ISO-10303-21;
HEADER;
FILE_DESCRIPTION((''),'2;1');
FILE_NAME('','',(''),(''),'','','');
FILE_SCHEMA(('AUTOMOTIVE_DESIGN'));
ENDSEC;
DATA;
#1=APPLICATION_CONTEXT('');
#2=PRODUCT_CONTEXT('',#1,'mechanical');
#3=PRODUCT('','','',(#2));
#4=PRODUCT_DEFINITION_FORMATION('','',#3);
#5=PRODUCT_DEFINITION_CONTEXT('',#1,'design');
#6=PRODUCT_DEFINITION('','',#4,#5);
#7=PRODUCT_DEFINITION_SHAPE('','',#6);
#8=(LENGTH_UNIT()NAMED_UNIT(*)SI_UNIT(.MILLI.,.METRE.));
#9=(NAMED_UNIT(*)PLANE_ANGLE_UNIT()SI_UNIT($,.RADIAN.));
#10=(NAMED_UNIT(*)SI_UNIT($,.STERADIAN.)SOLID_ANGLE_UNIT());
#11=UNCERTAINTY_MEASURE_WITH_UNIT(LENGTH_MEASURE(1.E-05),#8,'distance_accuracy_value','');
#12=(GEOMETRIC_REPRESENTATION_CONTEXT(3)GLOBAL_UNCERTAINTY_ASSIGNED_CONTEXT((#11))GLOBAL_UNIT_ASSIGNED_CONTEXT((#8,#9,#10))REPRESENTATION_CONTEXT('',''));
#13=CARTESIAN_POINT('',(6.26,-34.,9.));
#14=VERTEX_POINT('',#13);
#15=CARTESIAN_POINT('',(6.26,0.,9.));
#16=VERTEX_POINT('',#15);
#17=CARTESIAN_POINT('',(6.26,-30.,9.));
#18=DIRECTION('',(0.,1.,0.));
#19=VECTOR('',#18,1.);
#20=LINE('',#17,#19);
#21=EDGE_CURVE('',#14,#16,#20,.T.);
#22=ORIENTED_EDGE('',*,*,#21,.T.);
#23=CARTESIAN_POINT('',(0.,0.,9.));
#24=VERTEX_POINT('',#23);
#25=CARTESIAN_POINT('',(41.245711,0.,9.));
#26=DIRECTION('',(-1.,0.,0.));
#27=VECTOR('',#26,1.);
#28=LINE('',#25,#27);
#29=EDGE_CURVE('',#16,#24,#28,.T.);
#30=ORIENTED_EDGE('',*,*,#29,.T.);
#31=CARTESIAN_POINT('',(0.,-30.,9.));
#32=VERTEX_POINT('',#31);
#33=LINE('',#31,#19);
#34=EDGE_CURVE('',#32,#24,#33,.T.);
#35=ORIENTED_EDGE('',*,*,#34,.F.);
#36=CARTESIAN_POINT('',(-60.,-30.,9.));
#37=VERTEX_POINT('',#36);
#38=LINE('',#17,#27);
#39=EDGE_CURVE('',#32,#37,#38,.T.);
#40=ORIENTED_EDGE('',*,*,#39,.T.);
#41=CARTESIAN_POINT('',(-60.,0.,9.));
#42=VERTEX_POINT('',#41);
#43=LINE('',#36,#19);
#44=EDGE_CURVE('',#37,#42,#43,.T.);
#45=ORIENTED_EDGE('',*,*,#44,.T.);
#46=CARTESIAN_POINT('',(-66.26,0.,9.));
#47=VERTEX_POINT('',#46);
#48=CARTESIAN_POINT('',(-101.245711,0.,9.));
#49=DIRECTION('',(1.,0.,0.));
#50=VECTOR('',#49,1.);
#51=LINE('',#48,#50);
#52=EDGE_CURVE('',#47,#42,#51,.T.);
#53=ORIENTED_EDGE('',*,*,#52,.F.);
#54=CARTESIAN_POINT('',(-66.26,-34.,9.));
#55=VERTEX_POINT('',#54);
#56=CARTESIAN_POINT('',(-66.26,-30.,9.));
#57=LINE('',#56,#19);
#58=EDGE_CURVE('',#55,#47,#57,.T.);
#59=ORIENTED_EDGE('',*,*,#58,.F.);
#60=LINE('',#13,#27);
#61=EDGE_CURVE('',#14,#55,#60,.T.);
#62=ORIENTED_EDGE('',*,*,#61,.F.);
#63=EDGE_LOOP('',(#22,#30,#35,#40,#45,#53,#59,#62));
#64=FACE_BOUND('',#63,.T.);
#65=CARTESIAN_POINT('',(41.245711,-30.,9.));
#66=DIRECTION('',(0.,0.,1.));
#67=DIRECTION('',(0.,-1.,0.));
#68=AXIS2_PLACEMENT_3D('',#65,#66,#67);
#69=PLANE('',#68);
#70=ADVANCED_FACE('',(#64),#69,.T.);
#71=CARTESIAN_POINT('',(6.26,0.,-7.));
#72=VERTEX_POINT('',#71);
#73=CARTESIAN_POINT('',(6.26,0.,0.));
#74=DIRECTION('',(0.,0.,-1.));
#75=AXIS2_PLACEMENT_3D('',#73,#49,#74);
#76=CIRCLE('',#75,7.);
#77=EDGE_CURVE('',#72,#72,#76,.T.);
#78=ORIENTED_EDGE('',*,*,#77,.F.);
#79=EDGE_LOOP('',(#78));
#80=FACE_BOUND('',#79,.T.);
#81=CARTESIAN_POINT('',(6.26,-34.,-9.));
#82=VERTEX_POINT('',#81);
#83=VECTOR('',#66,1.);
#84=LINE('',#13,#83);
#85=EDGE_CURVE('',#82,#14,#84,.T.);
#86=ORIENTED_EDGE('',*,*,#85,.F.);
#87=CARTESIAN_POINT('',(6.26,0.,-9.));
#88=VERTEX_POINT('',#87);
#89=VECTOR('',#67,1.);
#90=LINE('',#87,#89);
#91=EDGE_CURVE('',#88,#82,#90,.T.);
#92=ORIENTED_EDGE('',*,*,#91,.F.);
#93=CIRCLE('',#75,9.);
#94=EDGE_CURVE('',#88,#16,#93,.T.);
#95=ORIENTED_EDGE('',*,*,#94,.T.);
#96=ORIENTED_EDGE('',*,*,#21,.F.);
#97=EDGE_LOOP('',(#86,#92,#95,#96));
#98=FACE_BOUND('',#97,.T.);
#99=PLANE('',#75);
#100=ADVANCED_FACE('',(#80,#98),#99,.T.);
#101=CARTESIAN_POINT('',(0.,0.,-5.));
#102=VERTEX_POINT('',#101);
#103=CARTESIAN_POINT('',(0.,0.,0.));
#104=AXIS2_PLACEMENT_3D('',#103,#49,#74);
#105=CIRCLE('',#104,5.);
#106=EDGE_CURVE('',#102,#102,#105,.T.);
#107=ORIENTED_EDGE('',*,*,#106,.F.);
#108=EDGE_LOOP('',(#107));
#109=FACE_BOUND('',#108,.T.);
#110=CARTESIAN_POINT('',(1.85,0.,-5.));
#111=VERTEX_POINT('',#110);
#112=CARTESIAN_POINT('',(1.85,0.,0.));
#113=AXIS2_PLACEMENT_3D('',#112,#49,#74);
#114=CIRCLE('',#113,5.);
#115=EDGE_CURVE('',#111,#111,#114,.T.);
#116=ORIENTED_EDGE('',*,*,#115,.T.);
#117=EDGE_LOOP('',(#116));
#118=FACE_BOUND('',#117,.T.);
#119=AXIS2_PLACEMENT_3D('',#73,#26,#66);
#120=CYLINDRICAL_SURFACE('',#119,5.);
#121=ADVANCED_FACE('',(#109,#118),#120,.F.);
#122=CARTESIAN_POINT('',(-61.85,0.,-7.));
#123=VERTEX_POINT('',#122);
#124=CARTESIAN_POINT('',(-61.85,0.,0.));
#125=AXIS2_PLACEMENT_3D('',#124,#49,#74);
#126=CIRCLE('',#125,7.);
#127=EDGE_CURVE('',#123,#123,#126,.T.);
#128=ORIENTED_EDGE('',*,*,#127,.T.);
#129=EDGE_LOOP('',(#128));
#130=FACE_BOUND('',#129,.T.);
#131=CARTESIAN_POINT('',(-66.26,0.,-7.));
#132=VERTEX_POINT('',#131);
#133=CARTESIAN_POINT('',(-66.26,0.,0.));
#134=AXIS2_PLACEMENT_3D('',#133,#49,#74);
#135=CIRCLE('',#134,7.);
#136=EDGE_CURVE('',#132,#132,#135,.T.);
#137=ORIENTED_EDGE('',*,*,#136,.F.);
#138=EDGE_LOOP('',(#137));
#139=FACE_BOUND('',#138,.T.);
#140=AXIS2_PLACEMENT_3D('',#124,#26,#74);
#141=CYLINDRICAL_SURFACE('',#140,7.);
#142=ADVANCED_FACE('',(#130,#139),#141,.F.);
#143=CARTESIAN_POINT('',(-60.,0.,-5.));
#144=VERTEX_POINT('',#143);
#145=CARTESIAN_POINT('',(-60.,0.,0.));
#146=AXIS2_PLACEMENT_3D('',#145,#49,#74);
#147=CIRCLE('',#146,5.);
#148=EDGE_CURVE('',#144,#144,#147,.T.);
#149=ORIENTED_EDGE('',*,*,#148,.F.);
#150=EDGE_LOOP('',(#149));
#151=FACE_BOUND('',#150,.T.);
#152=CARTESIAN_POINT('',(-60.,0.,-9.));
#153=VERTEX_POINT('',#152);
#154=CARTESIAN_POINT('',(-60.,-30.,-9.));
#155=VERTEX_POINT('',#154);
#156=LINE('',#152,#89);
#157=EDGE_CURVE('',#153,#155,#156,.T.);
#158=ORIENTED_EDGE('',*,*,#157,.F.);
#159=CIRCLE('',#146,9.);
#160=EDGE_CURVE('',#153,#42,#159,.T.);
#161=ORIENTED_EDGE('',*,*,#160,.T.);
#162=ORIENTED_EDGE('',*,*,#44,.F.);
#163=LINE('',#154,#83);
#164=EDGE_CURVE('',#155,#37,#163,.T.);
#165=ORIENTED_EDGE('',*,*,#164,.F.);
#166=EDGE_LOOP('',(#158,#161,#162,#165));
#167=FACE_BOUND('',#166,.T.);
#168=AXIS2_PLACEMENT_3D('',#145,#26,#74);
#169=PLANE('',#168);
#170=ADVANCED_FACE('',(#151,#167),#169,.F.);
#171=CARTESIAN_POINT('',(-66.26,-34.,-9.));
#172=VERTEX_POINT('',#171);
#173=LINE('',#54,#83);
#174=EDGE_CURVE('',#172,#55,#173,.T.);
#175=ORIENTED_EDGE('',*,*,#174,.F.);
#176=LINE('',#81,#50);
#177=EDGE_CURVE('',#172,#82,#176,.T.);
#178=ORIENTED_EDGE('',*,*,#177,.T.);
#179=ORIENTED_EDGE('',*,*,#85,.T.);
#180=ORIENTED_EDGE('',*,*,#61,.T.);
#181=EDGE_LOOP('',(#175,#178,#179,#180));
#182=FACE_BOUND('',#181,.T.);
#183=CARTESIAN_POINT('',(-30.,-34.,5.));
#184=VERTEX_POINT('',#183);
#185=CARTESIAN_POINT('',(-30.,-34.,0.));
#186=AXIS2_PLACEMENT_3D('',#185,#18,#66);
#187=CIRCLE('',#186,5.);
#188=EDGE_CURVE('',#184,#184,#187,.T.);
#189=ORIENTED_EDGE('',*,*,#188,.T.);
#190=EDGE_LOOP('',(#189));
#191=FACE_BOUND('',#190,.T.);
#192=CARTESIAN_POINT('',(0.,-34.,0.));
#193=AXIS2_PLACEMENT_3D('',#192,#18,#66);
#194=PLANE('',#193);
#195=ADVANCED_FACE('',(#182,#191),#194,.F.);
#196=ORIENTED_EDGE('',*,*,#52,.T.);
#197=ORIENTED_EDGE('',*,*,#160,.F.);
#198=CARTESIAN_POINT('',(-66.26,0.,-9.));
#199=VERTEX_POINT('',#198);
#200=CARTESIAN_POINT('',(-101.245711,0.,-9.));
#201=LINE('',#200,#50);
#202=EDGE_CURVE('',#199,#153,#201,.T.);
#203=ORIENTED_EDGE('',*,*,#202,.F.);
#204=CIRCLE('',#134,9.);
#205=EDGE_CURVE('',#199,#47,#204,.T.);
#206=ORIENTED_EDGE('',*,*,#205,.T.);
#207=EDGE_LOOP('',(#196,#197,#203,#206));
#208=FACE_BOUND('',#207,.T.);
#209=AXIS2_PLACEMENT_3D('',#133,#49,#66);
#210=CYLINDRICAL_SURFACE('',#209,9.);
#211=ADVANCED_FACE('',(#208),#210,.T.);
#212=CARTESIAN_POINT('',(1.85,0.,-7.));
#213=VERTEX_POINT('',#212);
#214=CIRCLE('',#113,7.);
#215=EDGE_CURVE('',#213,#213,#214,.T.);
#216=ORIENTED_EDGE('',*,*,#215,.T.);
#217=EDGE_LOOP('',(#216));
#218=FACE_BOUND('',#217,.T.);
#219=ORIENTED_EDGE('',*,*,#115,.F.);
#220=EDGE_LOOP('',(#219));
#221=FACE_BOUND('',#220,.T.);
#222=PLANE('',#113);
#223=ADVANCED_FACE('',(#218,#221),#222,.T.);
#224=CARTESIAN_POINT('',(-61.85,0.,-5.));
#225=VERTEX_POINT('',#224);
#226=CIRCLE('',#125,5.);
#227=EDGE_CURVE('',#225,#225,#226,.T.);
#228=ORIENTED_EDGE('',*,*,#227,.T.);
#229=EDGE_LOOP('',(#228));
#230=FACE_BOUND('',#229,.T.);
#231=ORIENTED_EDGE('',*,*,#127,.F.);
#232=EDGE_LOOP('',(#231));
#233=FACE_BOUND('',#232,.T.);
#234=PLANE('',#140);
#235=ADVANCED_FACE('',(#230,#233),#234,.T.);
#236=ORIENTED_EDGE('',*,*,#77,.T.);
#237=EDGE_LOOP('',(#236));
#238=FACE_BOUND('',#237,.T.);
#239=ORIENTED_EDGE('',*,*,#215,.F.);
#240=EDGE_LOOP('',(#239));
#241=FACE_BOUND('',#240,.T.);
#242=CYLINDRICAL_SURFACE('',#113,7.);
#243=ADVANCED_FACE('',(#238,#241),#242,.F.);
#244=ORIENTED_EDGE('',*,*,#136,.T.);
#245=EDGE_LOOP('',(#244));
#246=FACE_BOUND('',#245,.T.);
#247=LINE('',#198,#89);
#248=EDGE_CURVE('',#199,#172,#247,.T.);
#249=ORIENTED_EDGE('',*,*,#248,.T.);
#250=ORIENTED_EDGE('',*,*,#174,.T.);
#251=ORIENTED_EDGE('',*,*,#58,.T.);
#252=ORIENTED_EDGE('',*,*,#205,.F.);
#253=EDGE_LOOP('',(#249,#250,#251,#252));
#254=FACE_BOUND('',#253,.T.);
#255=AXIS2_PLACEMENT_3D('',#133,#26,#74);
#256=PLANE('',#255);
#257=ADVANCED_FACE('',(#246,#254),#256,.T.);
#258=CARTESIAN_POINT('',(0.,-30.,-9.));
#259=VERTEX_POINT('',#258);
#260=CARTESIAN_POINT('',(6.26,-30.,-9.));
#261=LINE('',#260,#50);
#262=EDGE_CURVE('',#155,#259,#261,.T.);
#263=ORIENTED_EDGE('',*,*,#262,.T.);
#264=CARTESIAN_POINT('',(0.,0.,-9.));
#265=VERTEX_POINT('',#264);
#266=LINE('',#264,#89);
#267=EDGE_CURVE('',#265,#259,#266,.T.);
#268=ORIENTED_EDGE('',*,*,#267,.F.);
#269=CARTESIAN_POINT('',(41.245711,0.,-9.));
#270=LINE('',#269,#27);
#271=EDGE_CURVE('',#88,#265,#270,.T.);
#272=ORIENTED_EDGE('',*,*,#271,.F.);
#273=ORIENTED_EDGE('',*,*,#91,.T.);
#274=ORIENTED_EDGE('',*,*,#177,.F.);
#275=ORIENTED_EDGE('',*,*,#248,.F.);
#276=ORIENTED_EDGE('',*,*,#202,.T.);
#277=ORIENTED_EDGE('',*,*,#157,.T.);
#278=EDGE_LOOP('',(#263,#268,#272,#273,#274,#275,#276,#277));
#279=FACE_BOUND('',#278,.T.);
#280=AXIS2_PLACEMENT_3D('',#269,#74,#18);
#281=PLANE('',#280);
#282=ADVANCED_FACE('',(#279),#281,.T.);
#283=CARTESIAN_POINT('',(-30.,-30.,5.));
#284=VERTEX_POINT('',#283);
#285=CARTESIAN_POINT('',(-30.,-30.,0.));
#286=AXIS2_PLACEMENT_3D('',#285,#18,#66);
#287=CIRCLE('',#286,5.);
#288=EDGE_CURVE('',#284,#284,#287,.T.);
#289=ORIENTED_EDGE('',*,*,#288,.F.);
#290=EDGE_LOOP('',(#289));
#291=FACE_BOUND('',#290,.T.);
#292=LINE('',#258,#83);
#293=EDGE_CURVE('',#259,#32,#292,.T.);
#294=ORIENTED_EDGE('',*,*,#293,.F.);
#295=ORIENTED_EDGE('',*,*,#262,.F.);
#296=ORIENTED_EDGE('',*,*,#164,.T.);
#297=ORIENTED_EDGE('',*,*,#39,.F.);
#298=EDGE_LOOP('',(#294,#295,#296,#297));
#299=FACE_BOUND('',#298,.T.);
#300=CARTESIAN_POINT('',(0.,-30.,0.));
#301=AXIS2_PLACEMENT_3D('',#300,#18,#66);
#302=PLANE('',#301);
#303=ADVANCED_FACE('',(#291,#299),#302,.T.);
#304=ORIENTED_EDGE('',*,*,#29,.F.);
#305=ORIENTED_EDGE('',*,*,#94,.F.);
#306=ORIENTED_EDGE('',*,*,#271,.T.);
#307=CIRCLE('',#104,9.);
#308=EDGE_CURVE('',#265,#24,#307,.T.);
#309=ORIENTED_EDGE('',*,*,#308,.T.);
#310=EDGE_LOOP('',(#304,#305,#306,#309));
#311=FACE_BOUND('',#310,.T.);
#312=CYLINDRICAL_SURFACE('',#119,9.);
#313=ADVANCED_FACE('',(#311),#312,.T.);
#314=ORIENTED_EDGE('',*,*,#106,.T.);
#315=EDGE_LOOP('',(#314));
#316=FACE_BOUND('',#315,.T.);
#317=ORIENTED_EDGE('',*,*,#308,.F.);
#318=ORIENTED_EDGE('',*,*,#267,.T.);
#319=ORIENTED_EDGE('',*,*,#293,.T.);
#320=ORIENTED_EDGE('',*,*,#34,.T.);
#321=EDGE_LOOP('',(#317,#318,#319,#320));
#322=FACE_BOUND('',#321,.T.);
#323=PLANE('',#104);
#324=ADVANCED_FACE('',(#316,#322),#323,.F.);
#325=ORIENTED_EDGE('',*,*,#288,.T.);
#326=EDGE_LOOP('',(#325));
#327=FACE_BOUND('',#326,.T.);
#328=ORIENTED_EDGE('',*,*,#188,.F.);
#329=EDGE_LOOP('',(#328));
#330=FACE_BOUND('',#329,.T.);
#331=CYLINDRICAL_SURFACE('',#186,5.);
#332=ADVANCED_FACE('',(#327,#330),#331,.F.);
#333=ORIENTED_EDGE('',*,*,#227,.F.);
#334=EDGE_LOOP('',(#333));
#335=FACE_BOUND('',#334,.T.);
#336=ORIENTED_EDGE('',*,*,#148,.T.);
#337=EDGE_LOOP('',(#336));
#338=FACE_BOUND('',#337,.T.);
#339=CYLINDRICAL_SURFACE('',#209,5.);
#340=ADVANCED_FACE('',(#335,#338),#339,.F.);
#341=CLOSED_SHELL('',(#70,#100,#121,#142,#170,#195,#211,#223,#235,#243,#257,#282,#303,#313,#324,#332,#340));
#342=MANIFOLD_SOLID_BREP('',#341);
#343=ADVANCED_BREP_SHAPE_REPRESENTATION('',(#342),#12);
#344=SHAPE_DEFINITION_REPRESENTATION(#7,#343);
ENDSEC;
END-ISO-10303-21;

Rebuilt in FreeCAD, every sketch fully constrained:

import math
import FreeCAD as App
import Part
import Sketcher
from FreeCAD import Vector
Q = App.Units.Quantity

doc = App.newDocument("Part")
params = doc.addObject("Spreadsheet::Sheet", "Params")
for row, (alias, value) in enumerate([
    ("sketch1_diameter", "18 mm"),
    ("sketch1_diameter2", "10 mm"),
    ("pad1_length", "6.26 mm"),
    ("sketch2_radius", "5 mm"),
    ("sketch2_width", "30 mm"),
    ("sketch2_height", "18 mm"),
    ("pad2_length", "6.26 mm"),
    ("sketch3_diameter", "14 mm"),
    ("pocket1_length", "4.41 mm"),
    ("sketch4_height", "18 mm"),
    ("sketch4_width", "36.26 mm"),
    ("pad3_length", "4 mm"),
    ("sketch5_diameter", "10 mm"),
], start=1):
    params.set(f"A{row}", alias)
    params.set(f"B{row}", "=" + value)
    params.setAlias(f"B{row}", alias)

body = doc.addObject("PartDesign::Body", "Body")

# Sketch on YZ plane
sketch1 = body.newObject("Sketcher::SketchObject", "Sketch")
sketch1.AttachmentSupport = (doc.getObject("YZ_Plane"), [""])
sketch1.MapMode = "FlatFace"
sketch1.addGeometry([
    Part.Circle(Vector(0, 0, 0), Vector(0, 0, 1), 9),
    Part.Circle(Vector(0, 0, 0), Vector(0, 0, 1), 5),
], False)
sketch1.addConstraint([
    Sketcher.Constraint("Coincident", 0, 3, -1, 1),
    Sketcher.Constraint("Coincident", 1, 3, -1, 1),
    Sketcher.Constraint("Diameter", 0, Q("18 mm")),
    Sketcher.Constraint("Diameter", 1, Q("10 mm")),
])
sketch1.setExpression("Constraints[2]", "Params.sketch1_diameter")
sketch1.setExpression("Constraints[3]", "Params.sketch1_diameter2")
pad1 = body.newObject("PartDesign::Pad", "Pad")
pad1.Profile = sketch1
pad1.setExpression("Length", "Params.pad1_length")

# Sketch on YZ plane
sketch2 = body.newObject("Sketcher::SketchObject", "Sketch001")
sketch2.AttachmentSupport = (doc.getObject("YZ_Plane"), [""])
sketch2.MapMode = "FlatFace"
sketch2.addGeometry([
    Part.LineSegment(Vector(0, -9, 0), Vector(-30, -9, 0)),  # 0
    Part.LineSegment(Vector(-30, -9, 0), Vector(-30, 9, 0)),  # 1
    Part.LineSegment(Vector(-30, 9, 0), Vector(0, 9, 0)),  # 2
    Part.LineSegment(Vector(0, 9, 0), Vector(0, 5, 0)),  # 3
    Part.ArcOfCircle(Part.Circle(Vector(0, 0, 0), Vector(0, 0, 1), 5), math.radians(90), math.radians(270)),  # 4
    Part.LineSegment(Vector(0, -5, 0), Vector(0, -9, 0)),  # 5
], False)
sketch2.addConstraint([
    Sketcher.Constraint("Coincident", 0, 2, 1, 1),
    Sketcher.Constraint("Coincident", 1, 2, 2, 1),
    Sketcher.Constraint("Coincident", 2, 2, 3, 1),
    Sketcher.Constraint("Coincident", 3, 2, 4, 1),
    Sketcher.Constraint("Coincident", 4, 2, 5, 1),
    Sketcher.Constraint("Coincident", 5, 2, 0, 1),
    Sketcher.Constraint("Horizontal", 0),
    Sketcher.Constraint("Vertical", 1),
    Sketcher.Constraint("Horizontal", 2),
    Sketcher.Constraint("Vertical", 3),
    Sketcher.Constraint("Vertical", 5),
    Sketcher.Constraint("Coincident", 4, 3, -1, 1),
    Sketcher.Constraint("Symmetric", 2, 2, 5, 2, -1, 1),
    Sketcher.Constraint("PointOnObject", 2, 2, -2),
    Sketcher.Constraint("Radius", 4, Q("5 mm")),
    Sketcher.Constraint("DistanceX", 0, 2, 0, 1, Q("30 mm")),
    Sketcher.Constraint("DistanceY", 1, 1, 1, 2, Q("18 mm")),
])
sketch2.setExpression("Constraints[14]", "Params.sketch2_radius")
sketch2.setExpression("Constraints[15]", "Params.sketch2_width")
sketch2.setExpression("Constraints[16]", "Params.sketch2_height")
pad2 = body.newObject("PartDesign::Pad", "Pad001")
pad2.Profile = sketch2
pad2.setExpression("Length", "Params.pad2_length")

# Sketch on YZ plane
sketch3 = body.newObject("Sketcher::SketchObject", "Sketch002")
sketch3.AttachmentSupport = (doc.getObject("YZ_Plane"), [""])
sketch3.MapMode = "FlatFace"
sketch3.AttachmentOffset = App.Placement(Vector(0, 0, 6.26), App.Rotation())
sketch3.addGeometry(Part.Circle(Vector(0, 0, 0), Vector(0, 0, 1), 7), False)
sketch3.addConstraint([
    Sketcher.Constraint("Coincident", 0, 3, -1, 1),
    Sketcher.Constraint("Diameter", 0, Q("14 mm")),
])
sketch3.setExpression("Constraints[1]", "Params.sketch3_diameter")
pocket1 = body.newObject("PartDesign::Pocket", "Pocket")
pocket1.Profile = sketch3
pocket1.setExpression("Length", "Params.pocket1_length")

# Sketch on XZ plane
sketch4 = body.newObject("Sketcher::SketchObject", "Sketch003")
sketch4.AttachmentSupport = (doc.getObject("XZ_Plane"), [""])
sketch4.MapMode = "FlatFace"
sketch4.AttachmentOffset = App.Placement(Vector(0, 0, 30), App.Rotation())
sketch4.addGeometry([
    Part.LineSegment(Vector(-30, 9, 0), Vector(-30, -9, 0)),
    Part.LineSegment(Vector(-30, -9, 0), Vector(6, -9, 0)),
    Part.LineSegment(Vector(6, -9, 0), Vector(6, 9, 0)),
    Part.LineSegment(Vector(6, 9, 0), Vector(-30, 9, 0)),
], False)
sketch4.addConstraint([
    Sketcher.Constraint("Coincident", 0, 2, 1, 1),
    Sketcher.Constraint("Coincident", 1, 2, 2, 1),
    Sketcher.Constraint("Coincident", 2, 2, 3, 1),
    Sketcher.Constraint("Coincident", 3, 2, 0, 1),
    Sketcher.Constraint("Vertical", 0),
    Sketcher.Constraint("Horizontal", 1),
    Sketcher.Constraint("Vertical", 2),
    Sketcher.Constraint("Horizontal", 3),
    Sketcher.Constraint("DistanceY", 0, 2, 0, 1, Q("18 mm")),
    Sketcher.Constraint("DistanceX", 0, 2, -1, 1, Q("30 mm")),
    Sketcher.Constraint("DistanceY", 0, 2, -1, 1, Q("9 mm")),
    Sketcher.Constraint("DistanceX", 1, 1, 1, 2, Q("36.26 mm")),
])
sketch4.setExpression("Constraints[8]", "Params.sketch4_height")
sketch4.setExpression("Constraints[11]", "Params.sketch4_width")
pad3 = body.newObject("PartDesign::Pad", "Pad002")
pad3.Profile = sketch4
pad3.setExpression("Length", "Params.pad3_length")
body2 = doc.addObject("PartDesign::Body", "Body001")
doc.recompute()

body2.BaseFeature = body
doc.recompute()

mirroring = doc.addObject("Part::Mirroring", "Mirroring")
mirroring.Source = body
mirroring.Base = Vector(-30, -34, 9)
mirroring.Normal = Vector(1, 0, 0)
body3 = doc.addObject("PartDesign::Body", "Body002")
body3.BaseFeature = mirroring
boolean = body2.newObject("PartDesign::Boolean", "Boolean")
boolean.Type = "Fuse"
boolean.addObjects([body3])
doc.recompute()

# Sketch on XZ plane
sketch5 = body2.newObject("Sketcher::SketchObject", "Sketch004")
sketch5.AttachmentSupport = (doc.getObject("XZ_Plane001"), [""])
sketch5.MapMode = "FlatFace"
sketch5.AttachmentOffset = App.Placement(Vector(0, 0, 30), App.Rotation())
sketch5.addGeometry(Part.Circle(Vector(-30, 0, 0), Vector(0, 0, 1), 5), False)
sketch5.addConstraint([
    Sketcher.Constraint("PointOnObject", 0, 3, -1),
    Sketcher.Constraint("Diameter", 0, Q("10 mm")),
    Sketcher.Constraint("DistanceX", 0, 3, -1, 1, Q("30 mm")),
])
sketch5.setExpression("Constraints[1]", "Params.sketch5_diameter")
pocket2 = body2.newObject("PartDesign::Pocket", "Pocket001")
pocket2.Profile = sketch5
pocket2.Type = "ThroughAll"
pocket2.Reversed = True
mirroring.Visibility = False

doc.recompute()
